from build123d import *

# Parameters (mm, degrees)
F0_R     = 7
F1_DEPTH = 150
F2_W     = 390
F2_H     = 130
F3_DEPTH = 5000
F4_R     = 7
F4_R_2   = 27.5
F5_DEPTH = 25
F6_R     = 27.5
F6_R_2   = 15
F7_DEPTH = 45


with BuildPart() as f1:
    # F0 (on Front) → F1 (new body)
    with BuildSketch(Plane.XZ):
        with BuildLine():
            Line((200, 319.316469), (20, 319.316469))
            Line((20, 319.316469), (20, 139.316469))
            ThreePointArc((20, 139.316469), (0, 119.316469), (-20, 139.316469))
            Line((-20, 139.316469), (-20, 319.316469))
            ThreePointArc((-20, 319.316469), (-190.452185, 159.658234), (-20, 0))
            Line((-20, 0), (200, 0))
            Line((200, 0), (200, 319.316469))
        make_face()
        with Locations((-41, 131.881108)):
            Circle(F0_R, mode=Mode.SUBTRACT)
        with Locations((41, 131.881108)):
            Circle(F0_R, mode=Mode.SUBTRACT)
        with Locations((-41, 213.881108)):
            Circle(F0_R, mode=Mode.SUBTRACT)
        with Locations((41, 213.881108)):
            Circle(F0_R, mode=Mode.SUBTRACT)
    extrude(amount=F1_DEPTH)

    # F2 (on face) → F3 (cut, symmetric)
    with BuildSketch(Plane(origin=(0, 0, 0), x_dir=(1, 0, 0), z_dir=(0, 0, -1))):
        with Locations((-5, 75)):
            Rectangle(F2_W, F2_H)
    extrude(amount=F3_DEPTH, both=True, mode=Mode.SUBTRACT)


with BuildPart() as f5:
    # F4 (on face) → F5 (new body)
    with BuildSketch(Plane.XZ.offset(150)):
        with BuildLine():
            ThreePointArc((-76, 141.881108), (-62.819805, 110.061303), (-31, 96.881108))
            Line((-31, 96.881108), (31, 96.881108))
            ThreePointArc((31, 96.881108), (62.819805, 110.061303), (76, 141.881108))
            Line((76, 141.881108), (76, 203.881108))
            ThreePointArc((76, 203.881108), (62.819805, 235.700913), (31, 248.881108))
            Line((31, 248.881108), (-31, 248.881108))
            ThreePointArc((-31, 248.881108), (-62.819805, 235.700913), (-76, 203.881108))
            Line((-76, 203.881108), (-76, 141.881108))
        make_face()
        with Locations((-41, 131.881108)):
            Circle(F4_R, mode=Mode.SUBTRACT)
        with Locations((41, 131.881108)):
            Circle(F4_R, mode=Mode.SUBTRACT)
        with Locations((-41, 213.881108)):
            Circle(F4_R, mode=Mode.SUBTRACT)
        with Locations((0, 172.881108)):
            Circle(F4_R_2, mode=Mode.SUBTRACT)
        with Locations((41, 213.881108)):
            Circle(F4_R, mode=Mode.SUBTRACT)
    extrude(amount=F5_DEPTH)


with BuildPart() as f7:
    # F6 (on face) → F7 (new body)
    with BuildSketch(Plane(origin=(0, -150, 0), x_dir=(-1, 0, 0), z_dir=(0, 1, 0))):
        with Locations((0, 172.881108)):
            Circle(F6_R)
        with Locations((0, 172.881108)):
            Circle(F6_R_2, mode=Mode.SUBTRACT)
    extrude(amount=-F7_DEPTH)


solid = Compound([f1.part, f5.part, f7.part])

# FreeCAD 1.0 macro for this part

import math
import FreeCAD as App
import Part
import Sketcher

V = App.Vector
Q = App.Units.Quantity

doc = App.newDocument("Part")
body = doc.addObject("PartDesign::Body", "Body")

sketch1 = doc.addObject("Sketcher::SketchObject", "Sketch")
body.addObject(sketch1)
sketch1.AttachmentSupport = (doc.XZ_Plane, [""])
sketch1.MapMode = "FlatFace"
sketch1.addGeometry([
    Part.LineSegment(V(200, 319.316469, 0), V(20, 319.316469, 0)),
    Part.LineSegment(V(20, 319.316469, 0), V(20, 139.316469, 0)),
    Part.ArcOfCircle(Part.Circle(V(0, 139.316469, 0), V(0, 0, 1), 20), math.radians(180), math.radians(360)),
    Part.LineSegment(V(-20, 139.316469, 0), V(-20, 319.316469, 0)),
    Part.ArcOfCircle(Part.Circle(V(-30.452185, 159.658234, 0), V(0, 0, 1), 160), math.radians(86.25442), math.radians(273.74558)),
    Part.LineSegment(V(-20, 0, 0), V(200, 0, 0)),
    Part.LineSegment(V(200, 0, 0), V(200, 319.316469, 0)),
    Part.Circle(V(-41, 131.881108, 0), V(0, 0, 1), 7),
    Part.Circle(V(41, 131.881108, 0), V(0, 0, 1), 7),
    Part.Circle(V(-41, 213.881108, 0), V(0, 0, 1), 7),
    Part.Circle(V(41, 213.881108, 0), V(0, 0, 1), 7),
], False)
sketch1.addConstraint([
    Sketcher.Constraint("Coincident", 0, 2, 1, 1),
    Sketcher.Constraint("Tangent", 1, 2, 2, 2),
    Sketcher.Constraint("Tangent", 2, 1, 3, 1),
    Sketcher.Constraint("Coincident", 3, 2, 4, 1),
    Sketcher.Constraint("Coincident", 4, 2, 5, 1),
    Sketcher.Constraint("Coincident", 5, 2, 6, 1),
    Sketcher.Constraint("Coincident", 6, 2, 0, 1),
    Sketcher.Constraint("Horizontal", 0),
    Sketcher.Constraint("Vertical", 1),
    Sketcher.Constraint("Vertical", 3),
    Sketcher.Constraint("Horizontal", 5),
    Sketcher.Constraint("Vertical", 6),
    Sketcher.Constraint("Equal", 7, 8),
    Sketcher.Constraint("Equal", 8, 9),
    Sketcher.Constraint("Equal", 9, 10),
    Sketcher.Constraint("Symmetric", 7, 3, 8, 3, -2),
    Sketcher.Constraint("Symmetric", 9, 3, 10, 3, -2),
    Sketcher.Constraint("Symmetric", 0, 2, 3, 2, -2),
    Sketcher.Constraint("PointOnObject", 4, 2, -1),
    Sketcher.Constraint("Vertical", 7, 3, 9, 3),
    Sketcher.Constraint("Vertical", 3, 2, 4, 2),
    Sketcher.Constraint("Equal", 0, 1),
    Sketcher.Constraint("Diameter", 7, Q("14 mm")),
    Sketcher.Constraint("Radius", 2, Q("20 mm")),
    Sketcher.Constraint("Radius", 4, Q("160 mm")),
    Sketcher.Constraint("DistanceX", 0, 2, 0, 1, Q("180 mm")),
    Sketcher.Constraint("DistanceX", 7, 3, -1, 1, Q("41 mm")),
    Sketcher.Constraint("DistanceY", 7, 3, 9, 3, Q("82 mm")),
    Sketcher.Constraint("DistanceY", 6, 1, 6, 2, Q("319.316469 mm")),
    Sketcher.Constraint("DistanceY", -1, 1, 7, 3, Q("131.881108 mm")),
])
pad1 = doc.addObject("PartDesign::Pad", "Pad")
body.addObject(pad1)
pad1.Profile = sketch1
pad1.Length = 150

sketch2 = doc.addObject("Sketcher::SketchObject", "Sketch001")
body.addObject(sketch2)
sketch2.AttachmentSupport = (doc.XY_Plane, [""])
sketch2.MapMode = "FlatFace"
sketch2.addGeometry([
    Part.LineSegment(V(-200, -140, 0), V(-200, -10, 0)),
    Part.LineSegment(V(-200, -10, 0), V(190, -10, 0)),
    Part.LineSegment(V(190, -10, 0), V(190, -140, 0)),
    Part.LineSegment(V(190, -140, 0), V(-200, -140, 0)),
], False)
sketch2.addConstraint([
    Sketcher.Constraint("Coincident", 0, 2, 1, 1),
    Sketcher.Constraint("Coincident", 1, 2, 2, 1),
    Sketcher.Constraint("Coincident", 2, 2, 3, 1),
    Sketcher.Constraint("Coincident", 3, 2, 0, 1),
    Sketcher.Constraint("Vertical", 0),
    Sketcher.Constraint("Horizontal", 1),
    Sketcher.Constraint("Vertical", 2),
    Sketcher.Constraint("Horizontal", 3),
    Sketcher.Constraint("DistanceX", 1, 1, 1, 2, Q("390 mm")),
    Sketcher.Constraint("DistanceY", 0, 1, 0, 2, Q("130 mm")),
    Sketcher.Constraint("DistanceX", 0, 2, -1, 1, Q("200 mm")),
    Sketcher.Constraint("DistanceY", 0, 2, -1, 1, Q("10 mm")),
])
pocket1 = doc.addObject("PartDesign::Pocket", "Pocket")
body.addObject(pocket1)
pocket1.Profile = sketch2
pocket1.Length = 10000
pocket1.Midplane = True
body2 = doc.addObject("PartDesign::Body", "Body001")

sketch3 = doc.addObject("Sketcher::SketchObject", "Sketch002")
body2.addObject(sketch3)
sketch3.AttachmentSupport = (doc.getObject("XZ_Plane001"), [""])
sketch3.MapMode = "FlatFace"
sketch3.AttachmentOffset = App.Placement(V(0, 0, 150), App.Rotation())
sketch3.addGeometry([
    Part.ArcOfCircle(Part.Circle(V(-30.999999, 141.881109, 0), V(0, 0, 1), 45.000001), math.radians(-179.999999), math.radians(-90.000001)),
    Part.LineSegment(V(-31, 96.881108, 0), V(31, 96.881108, 0)),
    Part.ArcOfCircle(Part.Circle(V(30.999999, 141.881109, 0), V(0, 0, 1), 45.000001), math.radians(-89.999999), math.radians(-0.000001)),
    Part.LineSegment(V(76, 141.881108, 0), V(76, 203.881108, 0)),
    Part.ArcOfCircle(Part.Circle(V(30.999999, 203.881107, 0), V(0, 0, 1), 45.000001), math.radians(0.000001), math.radians(89.999999)),
    Part.LineSegment(V(31, 248.881108, 0), V(-31, 248.881108, 0)),
    Part.ArcOfCircle(Part.Circle(V(-30.999999, 203.881107, 0), V(0, 0, 1), 45.000001), math.radians(90.000001), math.radians(179.999999)),
    Part.LineSegment(V(-76, 203.881108, 0), V(-76, 141.881108, 0)),
    Part.Circle(V(-41, 131.881108, 0), V(0, 0, 1), 7),
    Part.Circle(V(41, 131.881108, 0), V(0, 0, 1), 7),
    Part.Circle(V(-41, 213.881108, 0), V(0, 0, 1), 7),
    Part.Circle(V(0, 172.881108, 0), V(0, 0, 1), 27.5),
    Part.Circle(V(41, 213.881108, 0), V(0, 0, 1), 7),
], False)
sketch3.addConstraint([
    Sketcher.Constraint("Tangent", 0, 2, 1, 1),
    Sketcher.Constraint("Tangent", 1, 2, 2, 1),
    Sketcher.Constraint("Tangent", 2, 2, 3, 1),
    Sketcher.Constraint("Tangent", 3, 2, 4, 1),
    Sketcher.Constraint("Tangent", 4, 2, 5, 1),
    Sketcher.Constraint("Tangent", 5, 2, 6, 1),
    Sketcher.Constraint("Tangent", 6, 2, 7, 1),
    Sketcher.Constraint("Tangent", 7, 2, 0, 1),
    Sketcher.Constraint("Horizontal", 1),
    Sketcher.Constraint("Vertical", 3),
    Sketcher.Constraint("Horizontal", 5),
    Sketcher.Constraint("Vertical", 7),
    Sketcher.Constraint("Equal", 0, 2),
    Sketcher.Constraint("Equal", 2, 4),
    Sketcher.Constraint("Equal", 4, 6),
    Sketcher.Constraint("Equal", 8, 9),
    Sketcher.Constraint("Equal", 9, 10),
    Sketcher.Constraint("Equal", 10, 12),
    Sketcher.Constraint("Symmetric", 8, 3, 9, 3, -2),
    Sketcher.Constraint("Symmetric", 10, 3, 12, 3, -2),
    Sketcher.Constraint("PointOnObject", 11, 3, -2),
    Sketcher.Constraint("Vertical", 8, 3, 10, 3),
    Sketcher.Constraint("Equal", 5, 3),
    Sketcher.Constraint("Diameter", 8, Q("14 mm")),
    Sketcher.Constraint("Diameter", 11, Q("55 mm")),
    Sketcher.Constraint("Radius", 0, Q("45.000001 mm")),
    Sketcher.Constraint("DistanceX", 1, 1, 1, 2, Q("62 mm")),
    Sketcher.Constraint("DistanceX", 0, 3, -1, 1, Q("30.999999 mm")),
    Sketcher.Constraint("DistanceX", 8, 3, -1, 1, Q("41 mm")),
    Sketcher.Constraint("DistanceY", 8, 3, 0, 3, Q("10.000001 mm")),
    Sketcher.Constraint("DistanceY", 6, 3, 10, 3, Q("10.000001 mm")),
    Sketcher.Constraint("DistanceY", 0, 3, 11, 3, Q("30.999999 mm")),
    Sketcher.Constraint("DistanceY", -1, 1, 0, 3, Q("141.881109 mm")),
])
pad2 = doc.addObject("PartDesign::Pad", "Pad001")
body2.addObject(pad2)
pad2.Profile = sketch3
pad2.Length = 25
body3 = doc.addObject("PartDesign::Body", "Body002")

sketch4 = doc.addObject("Sketcher::SketchObject", "Sketch003")
body3.addObject(sketch4)
sketch4.AttachmentSupport = (doc.getObject("XZ_Plane002"), [""])
sketch4.MapMode = "FlatFace"
sketch4.AttachmentOffset = App.Placement(V(0, 0, 150), App.Rotation())
sketch4.addGeometry([
    Part.Circle(V(0, 172.881108, 0), V(0, 0, 1), 27.5),
    Part.Circle(V(0, 172.881108, 0), V(0, 0, 1), 15),
], False)
sketch4.addConstraint([
    Sketcher.Constraint("Coincident", 1, 3, 0, 3),
    Sketcher.Constraint("PointOnObject", 0, 3, -2),
    Sketcher.Constraint("Diameter", 0, Q("55 mm")),
    Sketcher.Constraint("Diameter", 1, Q("30 mm")),
    Sketcher.Constraint("DistanceY", -1, 1, 0, 3, Q("172.881108 mm")),
])
pad3 = doc.addObject("PartDesign::Pad", "Pad002")
body3.addObject(pad3)
pad3.Profile = sketch4
pad3.Length = 45

doc.recompute()
